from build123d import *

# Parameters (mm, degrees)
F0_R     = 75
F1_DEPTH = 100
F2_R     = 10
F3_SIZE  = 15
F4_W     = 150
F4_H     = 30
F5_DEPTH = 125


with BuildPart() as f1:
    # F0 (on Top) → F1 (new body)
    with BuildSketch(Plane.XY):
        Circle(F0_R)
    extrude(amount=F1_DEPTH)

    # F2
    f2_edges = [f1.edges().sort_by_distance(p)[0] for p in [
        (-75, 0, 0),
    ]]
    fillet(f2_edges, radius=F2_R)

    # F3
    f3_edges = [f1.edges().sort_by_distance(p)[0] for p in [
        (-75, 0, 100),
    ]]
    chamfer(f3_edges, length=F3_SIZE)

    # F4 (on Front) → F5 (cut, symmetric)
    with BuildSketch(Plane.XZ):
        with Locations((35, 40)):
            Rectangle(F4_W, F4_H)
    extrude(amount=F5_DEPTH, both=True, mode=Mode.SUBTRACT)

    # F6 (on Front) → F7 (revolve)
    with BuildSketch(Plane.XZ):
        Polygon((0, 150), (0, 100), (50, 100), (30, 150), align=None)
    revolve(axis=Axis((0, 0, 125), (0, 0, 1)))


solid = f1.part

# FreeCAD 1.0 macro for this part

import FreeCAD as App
import Part
import Sketcher
from FreeCAD import Vector


def edges_at(feature, points):
    """Names of the edges that pass closest to the given points."""
    edges = feature.Shape.Edges
    near = lambda p: min(range(len(edges)), key=lambda i: edges[i].distToShape(Part.Vertex(*p))[0])
    return sorted({f"Edge{near(p) + 1}" for p in points})


def add_polygon(sketch, points):
    """Adds a closed chain of lines whose ends are joined by coincident constraints."""
    first, n = sketch.GeometryCount, len(points)
    for a, b in zip(points, points[1:] + points[:1]):
        sketch.addGeometry(Part.LineSegment(App.Vector(*a, 0), App.Vector(*b, 0)), False)
    for i in range(n):
        sketch.addConstraint(Sketcher.Constraint("Coincident", first + i, 2, first + (i + 1) % n, 1))

doc = App.newDocument("Part")
body = doc.addObject("PartDesign::Body", "Body")

# Sketch on XY plane
sketch1 = body.newObject("Sketcher::SketchObject", "Sketch")
sketch1.AttachmentSupport = (doc.getObject("XY_Plane"), [""])
sketch1.MapMode = "FlatFace"
sketch1.addGeometry(Part.Circle(Vector(0, 0, 0), Vector(0, 0, 1), 75), False)
sketch1.addConstraint([
    Sketcher.Constraint("Coincident", 0, 3, -1, 1),
    Sketcher.Constraint("Diameter", 0, 150.0),
])
pad1 = body.newObject("PartDesign::Pad", "Pad")
pad1.Profile = sketch1
pad1.Length = 100
doc.recompute()

fillet = body.newObject("PartDesign::Fillet", "Fillet")
fillet.Base = (pad1, edges_at(pad1, [(-75, 0, 0)]))
fillet.Radius = 10
doc.recompute()

chamfer = body.newObject("PartDesign::Chamfer", "Chamfer")
chamfer.Base = (fillet, edges_at(fillet, [(-75, 0, 100)]))
chamfer.Size = 15

# Sketch on XZ plane
sketch2 = body.newObject("Sketcher::SketchObject", "Sketch001")
sketch2.AttachmentSupport = (doc.getObject("XZ_Plane"), [""])
sketch2.MapMode = "FlatFace"
add_polygon(sketch2, [(-40, 55), (-40, 25), (110, 25), (110, 55)])  # lines 0-3
sketch2.addConstraint([
    Sketcher.Constraint("Vertical", 0),
    Sketcher.Constraint("Horizontal", 1),
    Sketcher.Constraint("Vertical", 2),
    Sketcher.Constraint("Horizontal", 3),
    Sketcher.Constraint("DistanceX", 1, 1, 1, 2, 150.0),
    Sketcher.Constraint("DistanceY", 0, 2, 0, 1, 30.0),
    Sketcher.Constraint("DistanceX", 0, 2, -1, 1, 40.0),
    Sketcher.Constraint("DistanceY", -1, 1, 0, 2, 25.0),
])
pocket1 = body.newObject("PartDesign::Pocket", "Pocket")
pocket1.Profile = sketch2
pocket1.Length = 250
pocket1.Midplane = True

# Sketch on XZ plane
sketch3 = body.newObject("Sketcher::SketchObject", "Sketch002")
sketch3.AttachmentSupport = (doc.getObject("XZ_Plane"), [""])
sketch3.MapMode = "FlatFace"
add_polygon(sketch3, [(0, 150), (0, 100), (50, 100), (30, 150)])  # lines 0-3
sketch3.addConstraint([
    Sketcher.Constraint("Vertical", 0),
    Sketcher.Constraint("Horizontal", 1),
    Sketcher.Constraint("Horizontal", 3),
    Sketcher.Constraint("PointOnObject", 0, 2, -2),
    Sketcher.Constraint("Equal", 1, 0),
    Sketcher.Constraint("DistanceX", 1, 1, 1, 2, 50.0),
    Sketcher.Constraint("DistanceX", 3, 2, 3, 1, 30.0),
    Sketcher.Constraint("DistanceY", -1, 1, 0, 2, 100.0),
])
revolution = body.newObject("PartDesign::Revolution", "Revolution")
revolution.Profile = sketch3
revolution.ReferenceAxis = (sketch3, ["V_Axis"])
revolution.Angle = 360

doc.recompute()
